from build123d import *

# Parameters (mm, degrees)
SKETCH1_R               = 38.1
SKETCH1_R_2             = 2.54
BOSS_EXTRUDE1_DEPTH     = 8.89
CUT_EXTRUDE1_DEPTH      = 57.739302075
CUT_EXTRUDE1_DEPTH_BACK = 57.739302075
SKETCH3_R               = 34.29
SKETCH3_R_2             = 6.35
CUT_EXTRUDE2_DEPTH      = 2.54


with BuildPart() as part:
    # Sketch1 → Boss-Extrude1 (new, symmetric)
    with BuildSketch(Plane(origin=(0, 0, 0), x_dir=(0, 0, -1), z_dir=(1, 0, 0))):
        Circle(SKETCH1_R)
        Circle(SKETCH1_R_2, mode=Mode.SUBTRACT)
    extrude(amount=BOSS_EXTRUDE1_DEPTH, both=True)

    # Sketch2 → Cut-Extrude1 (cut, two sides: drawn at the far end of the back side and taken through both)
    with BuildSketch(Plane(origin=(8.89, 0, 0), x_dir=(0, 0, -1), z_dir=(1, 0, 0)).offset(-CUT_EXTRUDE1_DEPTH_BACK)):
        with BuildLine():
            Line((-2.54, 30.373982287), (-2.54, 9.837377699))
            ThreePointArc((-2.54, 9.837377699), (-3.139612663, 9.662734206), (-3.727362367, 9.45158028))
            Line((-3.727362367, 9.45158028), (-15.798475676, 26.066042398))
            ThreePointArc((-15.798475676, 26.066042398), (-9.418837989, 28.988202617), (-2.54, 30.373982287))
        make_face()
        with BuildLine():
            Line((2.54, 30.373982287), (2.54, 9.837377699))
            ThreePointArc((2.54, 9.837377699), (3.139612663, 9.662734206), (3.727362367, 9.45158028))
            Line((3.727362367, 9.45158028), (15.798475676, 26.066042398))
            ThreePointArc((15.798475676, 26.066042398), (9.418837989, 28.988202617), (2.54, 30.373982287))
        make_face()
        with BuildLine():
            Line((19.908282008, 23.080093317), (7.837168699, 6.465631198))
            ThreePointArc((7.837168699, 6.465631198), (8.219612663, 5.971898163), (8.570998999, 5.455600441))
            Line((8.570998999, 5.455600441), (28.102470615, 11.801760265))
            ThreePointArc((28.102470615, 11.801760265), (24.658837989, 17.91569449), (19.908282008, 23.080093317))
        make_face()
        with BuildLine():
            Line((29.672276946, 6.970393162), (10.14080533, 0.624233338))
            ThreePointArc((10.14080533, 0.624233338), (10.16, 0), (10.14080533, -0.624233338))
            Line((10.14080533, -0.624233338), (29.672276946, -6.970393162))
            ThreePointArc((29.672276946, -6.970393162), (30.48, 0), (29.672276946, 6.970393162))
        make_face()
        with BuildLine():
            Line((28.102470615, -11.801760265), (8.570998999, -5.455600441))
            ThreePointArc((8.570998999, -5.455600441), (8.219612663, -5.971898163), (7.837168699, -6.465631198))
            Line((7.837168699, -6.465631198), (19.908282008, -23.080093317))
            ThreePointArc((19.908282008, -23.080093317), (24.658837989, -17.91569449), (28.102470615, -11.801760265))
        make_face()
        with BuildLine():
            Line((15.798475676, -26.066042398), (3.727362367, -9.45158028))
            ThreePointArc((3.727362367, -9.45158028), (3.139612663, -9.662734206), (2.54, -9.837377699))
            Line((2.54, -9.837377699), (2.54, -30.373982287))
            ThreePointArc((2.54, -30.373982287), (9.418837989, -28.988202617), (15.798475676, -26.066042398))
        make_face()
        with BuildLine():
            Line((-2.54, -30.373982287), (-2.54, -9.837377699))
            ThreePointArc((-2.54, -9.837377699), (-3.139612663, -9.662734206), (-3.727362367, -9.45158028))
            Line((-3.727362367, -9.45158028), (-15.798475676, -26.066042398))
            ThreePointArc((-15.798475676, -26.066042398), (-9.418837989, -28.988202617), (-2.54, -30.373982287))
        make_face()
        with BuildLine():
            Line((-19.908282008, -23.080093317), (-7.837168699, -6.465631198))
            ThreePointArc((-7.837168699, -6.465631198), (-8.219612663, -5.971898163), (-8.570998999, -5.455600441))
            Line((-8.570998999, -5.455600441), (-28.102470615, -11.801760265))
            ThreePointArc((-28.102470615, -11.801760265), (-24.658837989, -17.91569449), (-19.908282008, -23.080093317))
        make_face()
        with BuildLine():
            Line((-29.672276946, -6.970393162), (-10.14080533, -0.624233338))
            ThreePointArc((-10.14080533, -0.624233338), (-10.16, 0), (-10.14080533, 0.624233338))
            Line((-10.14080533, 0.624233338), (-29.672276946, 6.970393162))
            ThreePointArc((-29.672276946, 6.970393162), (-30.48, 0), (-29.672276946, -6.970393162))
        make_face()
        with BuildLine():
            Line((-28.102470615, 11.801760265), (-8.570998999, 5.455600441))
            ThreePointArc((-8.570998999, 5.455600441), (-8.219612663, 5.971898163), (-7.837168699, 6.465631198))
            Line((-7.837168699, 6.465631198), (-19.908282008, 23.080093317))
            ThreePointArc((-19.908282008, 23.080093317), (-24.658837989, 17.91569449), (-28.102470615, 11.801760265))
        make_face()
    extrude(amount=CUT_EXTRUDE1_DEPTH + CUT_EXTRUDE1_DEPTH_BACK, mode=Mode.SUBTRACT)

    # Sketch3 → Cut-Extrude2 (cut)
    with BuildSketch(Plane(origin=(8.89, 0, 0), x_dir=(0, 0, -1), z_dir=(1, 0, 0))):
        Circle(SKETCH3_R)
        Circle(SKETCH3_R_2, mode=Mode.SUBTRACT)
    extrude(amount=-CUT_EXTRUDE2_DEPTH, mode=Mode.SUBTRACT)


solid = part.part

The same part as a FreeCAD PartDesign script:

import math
import FreeCAD as App
import Part
import Sketcher
from FreeCAD import Vector
Q = App.Units.Quantity

doc = App.newDocument("Part")
body = doc.addObject("PartDesign::Body", "Body")

# Sketch on YZ plane
sketch1 = body.newObject("Sketcher::SketchObject", "Sketch")
sketch1.AttachmentSupport = (doc.getObject("YZ_Plane"), [""])
sketch1.MapMode = "FlatFace"
sketch1.addGeometry([
    Part.Circle(Vector(0, 0, 0), Vector(0, 0, 1), 38.1),
    Part.Circle(Vector(0, 0, 0), Vector(0, 0, 1), 2.5),
], False)
sketch1.addConstraint([
    Sketcher.Constraint("Coincident", 0, 3, -1, 1),
    Sketcher.Constraint("Coincident", 1, 3, -1, 1),
    Sketcher.Constraint("Diameter", 0, Q("3 in")),
    Sketcher.Constraint("Diameter", 1, Q("0.2 in")),
])
pad1 = body.newObject("PartDesign::Pad", "Pad")
pad1.Profile = sketch1
pad1.Length = Q("0.7 in")
pad1.Midplane = True

# Sketch on YZ plane
sketch2 = body.newObject("Sketcher::SketchObject", "Sketch001")
sketch2.AttachmentSupport = (doc.getObject("YZ_Plane"), [""])
sketch2.MapMode = "FlatFace"
sketch2.AttachmentOffset = App.Placement(Vector(0, 0, 0.35 * 25.4), App.Rotation())
sketch2.addGeometry([
    Part.LineSegment(Vector(9.8, 2.5, 0), Vector(30.4, 2.5, 0)),  # 0
    Part.ArcOfCircle(Part.Circle(Vector(0, 0, 0), Vector(0, 0, 1), 30.5), math.radians(5), math.radians(31)),  # 1
    Part.LineSegment(Vector(26.1, 15.8, 0), Vector(9.5, 3.7, 0)),  # 2
    Part.ArcOfCircle(Part.Circle(Vector(0, 0, 0), Vector(0, 0, 1), 10.2), math.radians(14.48), math.radians(21.52)),  # 3
    Part.LineSegment(Vector(30.4, -2.5, 0), Vector(9.8, -2.5, 0)),  # 4
    Part.ArcOfCircle(Part.Circle(Vector(0, 0, 0), Vector(0, 0, 1), 10.2), math.radians(-21.52), math.radians(-14.48)),  # 5
    Part.LineSegment(Vector(9.5, -3.7, 0), Vector(26.1, -15.8, 0)),  # 6
    Part.ArcOfCircle(Part.Circle(Vector(0, 0, 0), Vector(0, 0, 1), 30.5), math.radians(-31), math.radians(-5)),  # 7
    Part.LineSegment(Vector(23.1, -19.9, 0), Vector(6.5, -7.8, 0)),  # 8
    Part.ArcOfCircle(Part.Circle(Vector(0, 0, 0), Vector(0, 0, 1), 10.2), math.radians(-57.52), math.radians(-50.48)),  # 9
    Part.LineSegment(Vector(5.5, -8.6, 0), Vector(11.8, -28.1, 0)),  # 10
    Part.ArcOfCircle(Part.Circle(Vector(0, 0, 0), Vector(0, 0, 1), 30.5), math.radians(-67), math.radians(-41)),  # 11
    Part.LineSegment(Vector(7, -29.7, 0), Vector(0.6, -10.1, 0)),  # 12
    Part.ArcOfCircle(Part.Circle(Vector(0, 0, 0), Vector(0, 0, 1), 10.2), math.radians(-93.52), math.radians(-86.48)),  # 13
    Part.LineSegment(Vector(-0.6, -10.1, 0), Vector(-7, -29.7, 0)),  # 14
    Part.ArcOfCircle(Part.Circle(Vector(0, 0, 0), Vector(0, 0, 1), 30.5), math.radians(-103), math.radians(-77)),  # 15
    Part.LineSegment(Vector(-11.8, -28.1, 0), Vector(-5.5, -8.6, 0)),  # 16
    Part.ArcOfCircle(Part.Circle(Vector(0, 0, 0), Vector(0, 0, 1), 10.2), math.radians(-129.52), math.radians(-122.48)),  # 17
    Part.LineSegment(Vector(-6.5, -7.8, 0), Vector(-23.1, -19.9, 0)),  # 18
    Part.ArcOfCircle(Part.Circle(Vector(0, 0, 0), Vector(0, 0, 1), 30.5), math.radians(-139), math.radians(-113)),  # 19
    Part.LineSegment(Vector(-26.1, -15.8, 0), Vector(-9.5, -3.7, 0)),  # 20
    Part.ArcOfCircle(Part.Circle(Vector(0, 0, 0), Vector(0, 0, 1), 10.2), math.radians(-165.52), math.radians(-158.48)),  # 21
    Part.LineSegment(Vector(-9.8, -2.5, 0), Vector(-30.4, -2.5, 0)),  # 22
    Part.ArcOfCircle(Part.Circle(Vector(0, 0, 0), Vector(0, 0, 1), 30.5), math.radians(-175), math.radians(-149)),  # 23
    Part.LineSegment(Vector(-30.4, 2.5, 0), Vector(-9.8, 2.5, 0)),  # 24
    Part.ArcOfCircle(Part.Circle(Vector(0, 0, 0), Vector(0, 0, 1), 10.2), math.radians(158.48), math.radians(165.52)),  # 25
    Part.LineSegment(Vector(-9.5, 3.7, 0), Vector(-26.1, 15.8, 0)),  # 26
    Part.ArcOfCircle(Part.Circle(Vector(0, 0, 0), Vector(0, 0, 1), 30.5), math.radians(149), math.radians(175)),  # 27
    Part.LineSegment(Vector(-23.1, 19.9, 0), Vector(-6.5, 7.8, 0)),  # 28
    Part.ArcOfCircle(Part.Circle(Vector(0, 0, 0), Vector(0, 0, 1), 10.2), math.radians(122.48), math.radians(129.52)),  # 29
    Part.LineSegment(Vector(-5.5, 8.6, 0), Vector(-11.8, 28.1, 0)),  # 30
    Part.ArcOfCircle(Part.Circle(Vector(0, 0, 0), Vector(0, 0, 1), 30.5), math.radians(113), math.radians(139)),  # 31
    Part.LineSegment(Vector(-7, 29.7, 0), Vector(-0.6, 10.1, 0)),  # 32
    Part.ArcOfCircle(Part.Circle(Vector(0, 0, 0), Vector(0, 0, 1), 10.2), math.radians(86.48), math.radians(93.52)),  # 33
    Part.LineSegment(Vector(0.6, 10.1, 0), Vector(7, 29.7, 0)),  # 34
    Part.ArcOfCircle(Part.Circle(Vector(0, 0, 0), Vector(0, 0, 1), 30.5), math.radians(77), math.radians(103)),  # 35
    Part.LineSegment(Vector(11.8, 28.1, 0), Vector(5.5, 8.6, 0)),  # 36
    Part.ArcOfCircle(Part.Circle(Vector(0, 0, 0), Vector(0, 0, 1), 10.2), math.radians(50.48), math.radians(57.52)),  # 37
    Part.LineSegment(Vector(6.5, 7.8, 0), Vector(23.1, 19.9, 0)),  # 38
    Part.ArcOfCircle(Part.Circle(Vector(0, 0, 0), Vector(0, 0, 1), 30.5), math.radians(41), math.radians(67)),  # 39
], False)
sketch2.addConstraint([
    Sketcher.Constraint("Coincident", 0, 2, 1, 1),
    Sketcher.Constraint("Coincident", 1, 2, 2, 1),
    Sketcher.Constraint("Coincident", 2, 2, 3, 2),
    Sketcher.Constraint("Coincident", 3, 1, 0, 1),
    Sketcher.Constraint("Coincident", 4, 2, 5, 2),
    Sketcher.Constraint("Coincident", 5, 1, 6, 1),
    Sketcher.Constraint("Coincident", 6, 2, 7, 1),
    Sketcher.Constraint("Coincident", 7, 2, 4, 1),
    Sketcher.Constraint("Coincident", 8, 2, 9, 2),
    Sketcher.Constraint("Coincident", 9, 1, 10, 1),
    Sketcher.Constraint("Coincident", 10, 2, 11, 1),
    Sketcher.Constraint("Coincident", 11, 2, 8, 1),
    Sketcher.Constraint("Coincident", 12, 2, 13, 2),
    Sketcher.Constraint("Coincident", 13, 1, 14, 1),
    Sketcher.Constraint("Coincident", 14, 2, 15, 1),
    Sketcher.Constraint("Coincident", 15, 2, 12, 1),
    Sketcher.Constraint("Coincident", 16, 2, 17, 2),
    Sketcher.Constraint("Coincident", 17, 1, 18, 1),
    Sketcher.Constraint("Coincident", 18, 2, 19, 1),
    Sketcher.Constraint("Coincident", 19, 2, 16, 1),
    Sketcher.Constraint("Coincident", 20, 2, 21, 2),
    Sketcher.Constraint("Coincident", 21, 1, 22, 1),
    Sketcher.Constraint("Coincident", 22, 2, 23, 1),
    Sketcher.Constraint("Coincident", 23, 2, 20, 1),
    Sketcher.Constraint("Coincident", 24, 2, 25, 2),
    Sketcher.Constraint("Coincident", 25, 1, 26, 1),
    Sketcher.Constraint("Coincident", 26, 2, 27, 1),
    Sketcher.Constraint("Coincident", 27, 2, 24, 1),
    Sketcher.Constraint("Coincident", 28, 2, 29, 2),
    Sketcher.Constraint("Coincident", 29, 1, 30, 1),
    Sketcher.Constraint("Coincident", 30, 2, 31, 1),
    Sketcher.Constraint("Coincident", 31, 2, 28, 1),
    Sketcher.Constraint("Coincident", 32, 2, 33, 2),
    Sketcher.Constraint("Coincident", 33, 1, 34, 1),
    Sketcher.Constraint("Coincident", 34, 2, 35, 1),
    Sketcher.Constraint("Coincident", 35, 2, 32, 1),
    Sketcher.Constraint("Coincident", 36, 2, 37, 2),
    Sketcher.Constraint("Coincident", 37, 1, 38, 1),
    Sketcher.Constraint("Coincident", 38, 2, 39, 1),
    Sketcher.Constraint("Coincident", 39, 2, 36, 1),
    Sketcher.Constraint("Horizontal", 0),
    Sketcher.Constraint("Horizontal", 4),
    Sketcher.Constraint("Horizontal", 22),
    Sketcher.Constraint("Horizontal", 24),
    Sketcher.Constraint("Coincident", 1, 3, -1, 1),
    Sketcher.Constraint("Coincident", 3, 3, -1, 1),
    Sketcher.Constraint("Coincident", 5, 3, -1, 1),
    Sketcher.Constraint("Coincident", 7, 3, -1, 1),
    Sketcher.Constraint("Coincident", 9, 3, -1, 1),
    Sketcher.Constraint("Coincident", 11, 3, -1, 1),
    Sketcher.Constraint("Coincident", 13, 3, -1, 1),
    Sketcher.Constraint("Coincident", 15, 3, -1, 1),
    Sketcher.Constraint("Coincident", 17, 3, -1, 1),
    Sketcher.Constraint("Coincident", 19, 3, -1, 1),
    Sketcher.Constraint("Coincident", 21, 3, -1, 1),
    Sketcher.Constraint("Coincident", 23, 3, -1, 1),
    Sketcher.Constraint("Coincident", 25, 3, -1, 1),
    Sketcher.Constraint("Coincident", 27, 3, -1, 1),
    Sketcher.Constraint("Coincident", 29, 3, -1, 1),
    Sketcher.Constraint("Coincident", 31, 3, -1, 1),
    Sketcher.Constraint("Coincident", 33, 3, -1, 1),
    Sketcher.Constraint("Coincident", 35, 3, -1, 1),
    Sketcher.Constraint("Coincident", 37, 3, -1, 1),
    Sketcher.Constraint("Coincident", 39, 3, -1, 1),
    Sketcher.Constraint("Equal", 3, 5),
    Sketcher.Constraint("Equal", 1, 7),
    Sketcher.Constraint("Equal", 5, 9),
    Sketcher.Constraint("Equal", 7, 11),
    Sketcher.Constraint("Equal", 9, 13),
    Sketcher.Constraint("Equal", 11, 15),
    Sketcher.Constraint("Equal", 13, 17),
    Sketcher.Constraint("Equal", 15, 19),
    Sketcher.Constraint("Equal", 17, 21),
    Sketcher.Constraint("Equal", 19, 23),
    Sketcher.Constraint("Equal", 21, 25),
    Sketcher.Constraint("Equal", 23, 27),
    Sketcher.Constraint("Equal", 25, 29),
    Sketcher.Constraint("Equal", 27, 31),
    Sketcher.Constraint("Equal", 29, 33),
    Sketcher.Constraint("Equal", 31, 35),
    Sketcher.Constraint("Equal", 33, 37),
    Sketcher.Constraint("Equal", 35, 39),
    Sketcher.Constraint("Parallel", 6, 8),
    Sketcher.Constraint("Parallel", 10, 12),
    Sketcher.Constraint("Parallel", 14, 16),
    Sketcher.Constraint("Parallel", 2, 18),
    Sketcher.Constraint("Parallel", 18, 20),
    Sketcher.Constraint("Parallel", 8, 26),
    Sketcher.Constraint("Parallel", 26, 28),
    Sketcher.Constraint("Parallel", 12, 30),
    Sketcher.Constraint("Parallel", 30, 32),
    Sketcher.Constraint("Parallel", 16, 34),
    Sketcher.Constraint("Parallel", 34, 36),
    Sketcher.Constraint("Parallel", 20, 38),
    Sketcher.Constraint("Horizontal", 12, 2, 13, 1),
    Sketcher.Constraint("Horizontal", 14, 2, 15, 2),
    Sketcher.Constraint("Horizontal", 9, 1, 16, 2),
    Sketcher.Constraint("Horizontal", 8, 2, 17, 1),
    Sketcher.Constraint("Horizontal", 11, 2, 18, 2),
    Sketcher.Constraint("Horizontal", 5, 1, 20, 2),
    Sketcher.Constraint("Horizontal", 7, 2, 21, 1),
    Sketcher.Constraint("Horizontal", 3, 1, 24, 2),
    Sketcher.Constraint("Horizontal", 2, 2, 25, 1),
    Sketcher.Constraint("Horizontal", 32, 2, 33, 1),
    Sketcher.Constraint("Horizontal", 29, 1, 36, 2),
    Sketcher.Constraint("Horizontal", 28, 2, 37, 1),
    Sketcher.Constraint("Vertical", 3, 1, 4, 2),
    Sketcher.Constraint("Vertical", 2, 2, 5, 1),
    Sketcher.Constraint("Vertical", 17, 1, 28, 2),
    Sketcher.Constraint("Vertical", 16, 2, 29, 1),
    Sketcher.Constraint("Vertical", 13, 1, 32, 2),
    Sketcher.Constraint("Equal", 6, 8),
    Sketcher.Constraint("Equal", 8, 10),
    Sketcher.Constraint("Equal", 10, 12),
    Sketcher.Constraint("Radius", 1, Q("1.2 in")),
    Sketcher.Constraint("Radius", 3, Q("0.4 in")),
    Sketcher.Constraint("Angle", 2, Q("-144 deg")),
    Sketcher.Constraint("Angle", 10, Q("-72 deg")),
    Sketcher.Constraint("DistanceY", -1, 1, 0, 2, Q("0.1 in")),
    Sketcher.Constraint("DistanceY", 14, 2, -1, 1, Q("1.1681999 in")),
])
pocket1 = body.newObject("PartDesign::Pocket", "Pocket")
pocket1.Profile = sketch2
pocket1.Type = "ThroughAll"
pocket1.Midplane = True

# Sketch on YZ plane
sketch3 = body.newObject("Sketcher::SketchObject", "Sketch002")
sketch3.AttachmentSupport = (doc.getObject("YZ_Plane"), [""])
sketch3.MapMode = "FlatFace"
sketch3.AttachmentOffset = App.Placement(Vector(0, 0, 0.35 * 25.4), App.Rotation())
sketch3.addGeometry([
    Part.Circle(Vector(0, 0, 0), Vector(0, 0, 1), 34),
    Part.Circle(Vector(0, 0, 0), Vector(0, 0, 1), 6),
], False)
sketch3.addConstraint([
    Sketcher.Constraint("Coincident", 0, 3, -1, 1),
    Sketcher.Constraint("Coincident", 1, 3, -1, 1),
    Sketcher.Constraint("Diameter", 0, Q("2.7 in")),
    Sketcher.Constraint("Diameter", 1, Q("0.5 in")),
])
pocket2 = body.newObject("PartDesign::Pocket", "Pocket001")
pocket2.Profile = sketch3
pocket2.Length = Q("0.1 in")

doc.recompute()
